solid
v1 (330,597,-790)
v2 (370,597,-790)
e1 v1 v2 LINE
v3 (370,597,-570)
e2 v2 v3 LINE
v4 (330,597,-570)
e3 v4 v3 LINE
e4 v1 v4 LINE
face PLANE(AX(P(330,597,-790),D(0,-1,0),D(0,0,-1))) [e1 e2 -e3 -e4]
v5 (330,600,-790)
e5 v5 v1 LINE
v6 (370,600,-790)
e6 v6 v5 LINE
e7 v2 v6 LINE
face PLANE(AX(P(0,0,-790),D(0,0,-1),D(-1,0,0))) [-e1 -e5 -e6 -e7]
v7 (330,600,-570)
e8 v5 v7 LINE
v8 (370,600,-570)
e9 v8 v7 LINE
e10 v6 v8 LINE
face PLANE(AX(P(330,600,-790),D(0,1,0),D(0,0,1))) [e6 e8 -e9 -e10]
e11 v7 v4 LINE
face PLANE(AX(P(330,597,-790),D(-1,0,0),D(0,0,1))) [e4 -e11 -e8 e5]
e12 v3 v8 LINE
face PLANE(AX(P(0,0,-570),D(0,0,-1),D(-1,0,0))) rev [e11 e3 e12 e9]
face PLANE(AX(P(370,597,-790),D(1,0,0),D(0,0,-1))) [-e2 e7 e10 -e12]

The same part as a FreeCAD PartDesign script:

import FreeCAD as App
import Part
import Sketcher


def add_polygon(sketch, points):
    """Adds a closed chain of lines whose ends are joined by coincident constraints."""
    first, n = sketch.GeometryCount, len(points)
    for a, b in zip(points, points[1:] + points[:1]):
        sketch.addGeometry(Part.LineSegment(App.Vector(*a, 0), App.Vector(*b, 0)), False)
    for i in range(n):
        sketch.addConstraint(Sketcher.Constraint("Coincident", first + i, 2, first + (i + 1) % n, 1))

doc = App.newDocument("Part")
body = doc.addObject("PartDesign::Body", "Body")

# Sketch on XY plane
sketch1 = body.newObject("Sketcher::SketchObject", "Sketch")
sketch1.AttachmentSupport = (doc.getObject("XY_Plane"), [""])
sketch1.MapMode = "FlatFace"
sketch1.AttachmentOffset = App.Placement(App.Vector(0, 0, -570), App.Rotation())
add_polygon(sketch1, [(330, 600), (330, 597), (370, 597), (370, 600)])  # lines 0-3
sketch1.addConstraint([
    Sketcher.Constraint("Vertical", 0),
    Sketcher.Constraint("Horizontal", 1),
    Sketcher.Constraint("Vertical", 2),
    Sketcher.Constraint("Horizontal", 3),
    Sketcher.Constraint("DistanceX", 1, 1, 1, 2, 40.0),
    Sketcher.Constraint("DistanceY", 0, 2, 0, 1, 3.0),
    Sketcher.Constraint("DistanceX", -1, 1, 0, 2, 330.0),
    Sketcher.Constraint("DistanceY", -1, 1, 0, 2, 597.0),
])
pad1 = body.newObject("PartDesign::Pad", "Pad")
pad1.Profile = sketch1
pad1.Length = 220
pad1.Reversed = True

doc.recompute()
